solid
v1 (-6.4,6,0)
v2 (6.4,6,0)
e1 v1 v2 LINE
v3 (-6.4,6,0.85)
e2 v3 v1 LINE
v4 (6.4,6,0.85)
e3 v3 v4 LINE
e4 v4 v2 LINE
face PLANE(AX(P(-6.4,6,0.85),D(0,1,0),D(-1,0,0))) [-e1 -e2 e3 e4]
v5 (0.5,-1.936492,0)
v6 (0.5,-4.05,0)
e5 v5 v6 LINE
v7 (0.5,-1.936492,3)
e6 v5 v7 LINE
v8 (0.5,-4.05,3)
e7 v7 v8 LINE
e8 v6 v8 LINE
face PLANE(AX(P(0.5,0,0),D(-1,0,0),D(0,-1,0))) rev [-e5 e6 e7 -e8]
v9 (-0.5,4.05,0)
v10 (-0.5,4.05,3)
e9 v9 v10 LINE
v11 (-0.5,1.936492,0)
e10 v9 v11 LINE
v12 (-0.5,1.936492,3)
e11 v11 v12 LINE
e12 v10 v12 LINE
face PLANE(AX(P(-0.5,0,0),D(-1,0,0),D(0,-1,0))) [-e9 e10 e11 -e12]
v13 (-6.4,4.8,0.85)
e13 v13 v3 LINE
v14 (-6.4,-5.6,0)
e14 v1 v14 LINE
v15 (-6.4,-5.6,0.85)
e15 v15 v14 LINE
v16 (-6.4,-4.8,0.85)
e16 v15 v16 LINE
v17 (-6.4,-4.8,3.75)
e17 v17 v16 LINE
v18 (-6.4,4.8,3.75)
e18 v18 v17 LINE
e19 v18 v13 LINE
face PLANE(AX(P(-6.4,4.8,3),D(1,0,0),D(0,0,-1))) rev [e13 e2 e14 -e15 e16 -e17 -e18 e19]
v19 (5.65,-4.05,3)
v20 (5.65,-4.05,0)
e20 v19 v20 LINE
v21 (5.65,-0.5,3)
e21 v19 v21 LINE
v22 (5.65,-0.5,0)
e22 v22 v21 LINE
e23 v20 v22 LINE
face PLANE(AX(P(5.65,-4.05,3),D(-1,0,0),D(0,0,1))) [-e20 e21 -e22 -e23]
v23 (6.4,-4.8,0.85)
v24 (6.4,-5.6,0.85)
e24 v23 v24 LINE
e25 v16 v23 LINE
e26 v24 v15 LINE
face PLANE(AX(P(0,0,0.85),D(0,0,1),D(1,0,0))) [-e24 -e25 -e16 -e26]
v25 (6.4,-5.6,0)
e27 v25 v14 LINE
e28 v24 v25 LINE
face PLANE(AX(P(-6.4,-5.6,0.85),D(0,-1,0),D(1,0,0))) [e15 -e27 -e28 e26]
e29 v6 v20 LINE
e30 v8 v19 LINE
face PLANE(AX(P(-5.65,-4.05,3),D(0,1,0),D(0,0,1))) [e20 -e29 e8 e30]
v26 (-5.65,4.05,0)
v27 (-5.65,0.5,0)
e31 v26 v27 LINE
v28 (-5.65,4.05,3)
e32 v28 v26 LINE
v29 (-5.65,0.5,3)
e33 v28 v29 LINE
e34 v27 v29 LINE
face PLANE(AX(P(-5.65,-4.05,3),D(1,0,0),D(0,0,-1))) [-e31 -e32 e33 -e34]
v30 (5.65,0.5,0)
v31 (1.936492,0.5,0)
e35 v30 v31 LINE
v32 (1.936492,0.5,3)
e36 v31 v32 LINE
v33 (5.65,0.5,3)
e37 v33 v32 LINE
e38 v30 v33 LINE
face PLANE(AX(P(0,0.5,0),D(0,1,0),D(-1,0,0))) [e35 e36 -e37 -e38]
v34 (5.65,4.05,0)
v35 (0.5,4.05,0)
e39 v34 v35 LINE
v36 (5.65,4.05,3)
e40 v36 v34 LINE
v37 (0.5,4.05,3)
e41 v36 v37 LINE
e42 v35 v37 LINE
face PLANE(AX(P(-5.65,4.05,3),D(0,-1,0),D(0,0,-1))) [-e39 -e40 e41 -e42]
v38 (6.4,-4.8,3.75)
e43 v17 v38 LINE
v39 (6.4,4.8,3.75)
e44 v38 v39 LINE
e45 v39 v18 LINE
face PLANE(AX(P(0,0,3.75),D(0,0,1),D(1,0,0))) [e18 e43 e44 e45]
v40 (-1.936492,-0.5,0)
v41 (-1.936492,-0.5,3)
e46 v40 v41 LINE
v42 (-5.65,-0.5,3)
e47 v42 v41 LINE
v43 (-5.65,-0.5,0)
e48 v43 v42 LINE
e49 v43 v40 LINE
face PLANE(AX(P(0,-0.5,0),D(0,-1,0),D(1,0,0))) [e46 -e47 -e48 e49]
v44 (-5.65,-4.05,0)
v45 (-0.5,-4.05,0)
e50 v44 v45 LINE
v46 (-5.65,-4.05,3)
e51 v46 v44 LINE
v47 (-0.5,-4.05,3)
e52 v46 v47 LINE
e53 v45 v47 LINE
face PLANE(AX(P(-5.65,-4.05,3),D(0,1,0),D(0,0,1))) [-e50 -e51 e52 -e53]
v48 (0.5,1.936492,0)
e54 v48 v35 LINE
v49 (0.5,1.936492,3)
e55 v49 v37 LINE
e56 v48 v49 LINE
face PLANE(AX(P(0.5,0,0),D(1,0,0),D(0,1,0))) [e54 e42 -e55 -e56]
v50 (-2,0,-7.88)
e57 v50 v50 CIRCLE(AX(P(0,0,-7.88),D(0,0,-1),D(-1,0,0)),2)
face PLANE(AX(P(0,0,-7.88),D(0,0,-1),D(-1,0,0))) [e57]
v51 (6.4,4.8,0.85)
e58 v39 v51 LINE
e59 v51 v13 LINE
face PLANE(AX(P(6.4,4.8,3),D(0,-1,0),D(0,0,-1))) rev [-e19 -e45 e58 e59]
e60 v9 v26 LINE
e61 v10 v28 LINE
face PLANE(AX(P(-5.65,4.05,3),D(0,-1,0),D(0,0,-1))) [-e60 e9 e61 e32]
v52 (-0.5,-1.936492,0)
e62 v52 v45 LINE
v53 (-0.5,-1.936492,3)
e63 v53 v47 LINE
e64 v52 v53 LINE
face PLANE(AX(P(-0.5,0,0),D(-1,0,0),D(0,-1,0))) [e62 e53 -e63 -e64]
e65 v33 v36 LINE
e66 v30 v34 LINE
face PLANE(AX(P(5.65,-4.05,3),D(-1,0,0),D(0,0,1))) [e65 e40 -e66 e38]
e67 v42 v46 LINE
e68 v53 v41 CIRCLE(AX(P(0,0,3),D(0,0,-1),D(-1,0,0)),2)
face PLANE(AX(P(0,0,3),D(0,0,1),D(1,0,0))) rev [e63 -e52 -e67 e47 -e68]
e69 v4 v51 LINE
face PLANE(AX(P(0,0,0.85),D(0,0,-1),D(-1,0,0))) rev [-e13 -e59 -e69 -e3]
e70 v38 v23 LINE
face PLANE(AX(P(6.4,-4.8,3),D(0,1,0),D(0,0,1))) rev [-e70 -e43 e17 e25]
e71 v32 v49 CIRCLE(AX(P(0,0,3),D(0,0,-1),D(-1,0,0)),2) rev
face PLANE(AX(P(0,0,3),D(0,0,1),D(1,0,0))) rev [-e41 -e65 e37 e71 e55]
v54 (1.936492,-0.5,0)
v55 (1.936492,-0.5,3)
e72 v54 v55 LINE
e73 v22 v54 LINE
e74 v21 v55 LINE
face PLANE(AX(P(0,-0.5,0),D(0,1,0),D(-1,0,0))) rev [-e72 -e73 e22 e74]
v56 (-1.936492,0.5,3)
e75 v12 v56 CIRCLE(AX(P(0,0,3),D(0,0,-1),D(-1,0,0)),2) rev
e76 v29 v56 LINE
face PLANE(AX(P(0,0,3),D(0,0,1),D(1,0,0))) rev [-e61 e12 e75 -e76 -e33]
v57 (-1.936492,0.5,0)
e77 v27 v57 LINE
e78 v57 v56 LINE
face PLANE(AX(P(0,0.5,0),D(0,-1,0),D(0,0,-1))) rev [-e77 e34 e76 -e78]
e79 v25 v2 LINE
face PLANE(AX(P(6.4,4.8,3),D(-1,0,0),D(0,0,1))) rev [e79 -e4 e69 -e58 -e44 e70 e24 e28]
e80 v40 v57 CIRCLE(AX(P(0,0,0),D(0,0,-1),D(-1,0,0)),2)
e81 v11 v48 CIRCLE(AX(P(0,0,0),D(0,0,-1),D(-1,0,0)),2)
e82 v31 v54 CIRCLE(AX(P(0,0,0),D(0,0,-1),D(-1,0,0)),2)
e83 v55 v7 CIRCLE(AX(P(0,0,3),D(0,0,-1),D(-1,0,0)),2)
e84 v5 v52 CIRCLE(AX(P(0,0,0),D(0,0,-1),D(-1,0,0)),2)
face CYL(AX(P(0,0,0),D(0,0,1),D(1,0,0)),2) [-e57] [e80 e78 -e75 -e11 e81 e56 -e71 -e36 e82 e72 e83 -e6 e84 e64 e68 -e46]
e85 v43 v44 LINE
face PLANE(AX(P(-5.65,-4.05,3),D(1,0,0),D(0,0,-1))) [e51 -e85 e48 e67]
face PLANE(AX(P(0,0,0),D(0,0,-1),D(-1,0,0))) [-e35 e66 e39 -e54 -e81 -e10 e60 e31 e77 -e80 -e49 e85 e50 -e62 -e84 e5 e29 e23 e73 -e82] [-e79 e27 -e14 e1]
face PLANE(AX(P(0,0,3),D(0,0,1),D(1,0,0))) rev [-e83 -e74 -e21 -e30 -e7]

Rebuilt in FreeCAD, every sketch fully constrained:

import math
import FreeCAD as App
import Part
import Sketcher

V = App.Vector
Q = App.Units.Quantity


def add_polygon(sketch, points):
    """Adds a closed chain of lines whose ends are joined by coincident constraints."""
    first, n = sketch.GeometryCount, len(points)
    for a, b in zip(points, points[1:] + points[:1]):
        sketch.addGeometry(Part.LineSegment(App.Vector(*a, 0), App.Vector(*b, 0)), False)
    for i in range(n):
        sketch.addConstraint(Sketcher.Constraint("Coincident", first + i, 2, first + (i + 1) % n, 1))

doc = App.newDocument("Part")
body = doc.addObject("PartDesign::Body", "Body")

sketch1 = doc.addObject("Sketcher::SketchObject", "Sketch")
body.addObject(sketch1)
sketch1.AttachmentSupport = (doc.XY_Plane, [""])
sketch1.MapMode = "FlatFace"
add_polygon(sketch1, [(-6, 5), (-6, -5), (6, -5), (6, 5)])
add_polygon(sketch1, [(6, -4), (-6, -4), (-6, 4), (6, 4)])
sketch1.addConstraint(Sketcher.Constraint("Vertical", 0))
sketch1.addConstraint(Sketcher.Constraint("Horizontal", 1))
sketch1.addConstraint(Sketcher.Constraint("Vertical", 2))
sketch1.addConstraint(Sketcher.Constraint("Horizontal", 3))
sketch1.addConstraint(Sketcher.Constraint("Horizontal", 4))
sketch1.addConstraint(Sketcher.Constraint("Vertical", 5))
sketch1.addConstraint(Sketcher.Constraint("Horizontal", 6))
sketch1.addConstraint(Sketcher.Constraint("Vertical", 7))
sketch1.addConstraint(Sketcher.Constraint("Symmetric", 0, 2, 2, 2, -1, 1))
sketch1.addConstraint(Sketcher.Constraint("Symmetric", 4, 2, 6, 2, -1, 1))
sketch1.addConstraint(Sketcher.Constraint("DistanceX", 1, 1, 1, 2, Q("12.8 mm")))
sketch1.addConstraint(Sketcher.Constraint("DistanceX", 4, 2, 4, 1, Q("11.3 mm")))
sketch1.addConstraint(Sketcher.Constraint("DistanceY", 0, 2, 0, 1, Q("9.6 mm")))
sketch1.addConstraint(Sketcher.Constraint("DistanceY", 5, 1, 5, 2, Q("8.1 mm")))
pad1 = doc.addObject("PartDesign::Pad", "Pad")
body.addObject(pad1)
pad1.Profile = sketch1
pad1.Length = 3

sketch2 = doc.addObject("Sketcher::SketchObject", "Sketch001")
body.addObject(sketch2)
sketch2.AttachmentSupport = (doc.XY_Plane, [""])
sketch2.MapMode = "FlatFace"
sketch2.AttachmentOffset = App.Placement(V(0, 0, 3), App.Rotation())
add_polygon(sketch2, [(-6, 5), (-6, -5), (6, -5), (6, 5)])
sketch2.addConstraint(Sketcher.Constraint("Vertical", 0))
sketch2.addConstraint(Sketcher.Constraint("Horizontal", 1))
sketch2.addConstraint(Sketcher.Constraint("Vertical", 2))
sketch2.addConstraint(Sketcher.Constraint("Horizontal", 3))
sketch2.addConstraint(Sketcher.Constraint("Symmetric", 0, 2, 2, 2, -1, 1))
sketch2.addConstraint(Sketcher.Constraint("DistanceX", 1, 1, 1, 2, Q("12.8 mm")))
sketch2.addConstraint(Sketcher.Constraint("DistanceY", 0, 2, 0, 1, Q("9.6 mm")))
pad2 = doc.addObject("PartDesign::Pad", "Pad001")
body.addObject(pad2)
pad2.Profile = sketch2
pad2.Length = 0.75

sketch3 = doc.addObject("Sketcher::SketchObject", "Sketch002")
body.addObject(sketch3)
sketch3.AttachmentSupport = (doc.XY_Plane, [""])
sketch3.MapMode = "FlatFace"
add_polygon(sketch3, [(6.4, 6), (6.4, 4.8), (-6.4, 4.8), (-6.4, 6)])
add_polygon(sketch3, [(6.4, -4.8), (6.4, -5.6), (-6.4, -5.6), (-6.4, -4.8)])
sketch3.addConstraint(Sketcher.Constraint("Vertical", 0))
sketch3.addConstraint(Sketcher.Constraint("Horizontal", 1))
sketch3.addConstraint(Sketcher.Constraint("Vertical", 2))
sketch3.addConstraint(Sketcher.Constraint("Horizontal", 3))
sketch3.addConstraint(Sketcher.Constraint("Vertical", 4))
sketch3.addConstraint(Sketcher.Constraint("Horizontal", 5))
sketch3.addConstraint(Sketcher.Constraint("Vertical", 6))
sketch3.addConstraint(Sketcher.Constraint("Horizontal", 7))
sketch3.addConstraint(Sketcher.Constraint("Symmetric", 0, 2, 6, 2, -1, 1))
sketch3.addConstraint(Sketcher.Constraint("Vertical", 3, 2, 4, 2))
sketch3.addConstraint(Sketcher.Constraint("Vertical", 2, 2, 5, 2))
sketch3.addConstraint(Sketcher.Constraint("DistanceX", 1, 2, 1, 1, Q("12.8 mm")))
sketch3.addConstraint(Sketcher.Constraint("DistanceY", 0, 2, 0, 1, Q("1.2 mm")))
sketch3.addConstraint(Sketcher.Constraint("DistanceY", 4, 2, 4, 1, Q("0.8 mm")))
sketch3.addConstraint(Sketcher.Constraint("DistanceY", -1, 1, 2, 2, Q("6 mm")))
pad3 = doc.addObject("PartDesign::Pad", "Pad002")
body.addObject(pad3)
pad3.Profile = sketch3
pad3.Length = 0.85
body2 = doc.addObject("PartDesign::Body", "Body001")

sketch4 = doc.addObject("Sketcher::SketchObject", "Sketch003")
body2.addObject(sketch4)
sketch4.AttachmentSupport = (doc.getObject("XY_Plane001"), [""])
sketch4.MapMode = "FlatFace"
sketch4.AttachmentOffset = App.Placement(V(0, 0, 3), App.Rotation())
sketch4.addGeometry(Part.LineSegment(V(-5.7, -0.5, 0), V(-5.7, 0.5, 0)), False)
sketch4.addGeometry(Part.LineSegment(V(-5.7, 0.5, 0), V(-1.9, 0.5, 0)), False)
sketch4.addGeometry(Part.ArcOfCircle(Part.Circle(V(0, 0, 0), V(0, 0, 1), 2), math.radians(104), math.radians(166)), False)
sketch4.addGeometry(Part.LineSegment(V(-0.5, 1.9, 0), V(-0.5, 4, 0)), False)
sketch4.addGeometry(Part.LineSegment(V(-0.5, 4, 0), V(0.5, 4, 0)), False)
sketch4.addGeometry(Part.LineSegment(V(0.5, 4, 0), V(0.5, 1.9, 0)), False)
sketch4.addGeometry(Part.ArcOfCircle(Part.Circle(V(0, 0, 0), V(0, 0, 1), 2), math.radians(14), math.radians(76)), False)
sketch4.addGeometry(Part.LineSegment(V(1.9, 0.5, 0), V(5.7, 0.5, 0)), False)
sketch4.addGeometry(Part.LineSegment(V(5.7, 0.5, 0), V(5.7, -0.5, 0)), False)
sketch4.addGeometry(Part.LineSegment(V(5.7, -0.5, 0), V(1.9, -0.5, 0)), False)
sketch4.addGeometry(Part.ArcOfCircle(Part.Circle(V(0, 0, 0), V(0, 0, 1), 2), math.radians(-76), math.radians(-14)), False)
sketch4.addGeometry(Part.LineSegment(V(0.5, -1.9, 0), V(0.5, -4, 0)), False)
sketch4.addGeometry(Part.LineSegment(V(0.5, -4, 0), V(-0.5, -4, 0)), False)
sketch4.addGeometry(Part.LineSegment(V(-0.5, -4, 0), V(-0.5, -1.9, 0)), False)
sketch4.addGeometry(Part.ArcOfCircle(Part.Circle(V(0, 0, 0), V(0, 0, 1), 2), math.radians(-166), math.radians(-104)), False)
sketch4.addGeometry(Part.LineSegment(V(-1.9, -0.5, 0), V(-5.7, -0.5, 0)), False)
sketch4.addConstraint(Sketcher.Constraint("Coincident", 0, 2, 1, 1))
sketch4.addConstraint(Sketcher.Constraint("Coincident", 1, 2, 2, 2))
sketch4.addConstraint(Sketcher.Constraint("Coincident", 2, 1, 3, 1))
sketch4.addConstraint(Sketcher.Constraint("Coincident", 3, 2, 4, 1))
sketch4.addConstraint(Sketcher.Constraint("Coincident", 4, 2, 5, 1))
sketch4.addConstraint(Sketcher.Constraint("Coincident", 5, 2, 6, 2))
sketch4.addConstraint(Sketcher.Constraint("Coincident", 6, 1, 7, 1))
sketch4.addConstraint(Sketcher.Constraint("Coincident", 7, 2, 8, 1))
sketch4.addConstraint(Sketcher.Constraint("Coincident", 8, 2, 9, 1))
sketch4.addConstraint(Sketcher.Constraint("Coincident", 9, 2, 10, 2))
sketch4.addConstraint(Sketcher.Constraint("Coincident", 10, 1, 11, 1))
sketch4.addConstraint(Sketcher.Constraint("Coincident", 11, 2, 12, 1))
sketch4.addConstraint(Sketcher.Constraint("Coincident", 12, 2, 13, 1))
sketch4.addConstraint(Sketcher.Constraint("Coincident", 13, 2, 14, 2))
sketch4.addConstraint(Sketcher.Constraint("Coincident", 14, 1, 15, 1))
sketch4.addConstraint(Sketcher.Constraint("Coincident", 15, 2, 0, 1))
sketch4.addConstraint(Sketcher.Constraint("Vertical", 0))
sketch4.addConstraint(Sketcher.Constraint("Horizontal", 1))
sketch4.addConstraint(Sketcher.Constraint("Vertical", 3))
sketch4.addConstraint(Sketcher.Constraint("Horizontal", 4))
sketch4.addConstraint(Sketcher.Constraint("Vertical", 5))
sketch4.addConstraint(Sketcher.Constraint("Horizontal", 7))
sketch4.addConstraint(Sketcher.Constraint("Vertical", 8))
sketch4.addConstraint(Sketcher.Constraint("Horizontal", 9))
sketch4.addConstraint(Sketcher.Constraint("Vertical", 11))
sketch4.addConstraint(Sketcher.Constraint("Horizontal", 12))
sketch4.addConstraint(Sketcher.Constraint("Vertical", 13))
sketch4.addConstraint(Sketcher.Constraint("Horizontal", 15))
sketch4.addConstraint(Sketcher.Constraint("Coincident", 2, 3, -1, 1))
sketch4.addConstraint(Sketcher.Constraint("Coincident", 6, 3, -1, 1))
sketch4.addConstraint(Sketcher.Constraint("Coincident", 10, 3, -1, 1))
sketch4.addConstraint(Sketcher.Constraint("Coincident", 14, 3, -1, 1))
sketch4.addConstraint(Sketcher.Constraint("Equal", 2, 6))
sketch4.addConstraint(Sketcher.Constraint("Equal", 6, 10))
sketch4.addConstraint(Sketcher.Constraint("Equal", 10, 14))
sketch4.addConstraint(Sketcher.Constraint("Symmetric", 0, 2, 8, 2, -1, 1))
sketch4.addConstraint(Sketcher.Constraint("Symmetric", 3, 2, 11, 2, -1, 1))
sketch4.addConstraint(Sketcher.Constraint("Horizontal", 2, 1, 5, 2))
sketch4.addConstraint(Sketcher.Constraint("Horizontal", 1, 2, 6, 1))
sketch4.addConstraint(Sketcher.Constraint("Horizontal", 10, 1, 13, 2))
sketch4.addConstraint(Sketcher.Constraint("Horizontal", 9, 2, 14, 1))
sketch4.addConstraint(Sketcher.Constraint("Equal", 12, 0))
sketch4.addConstraint(Sketcher.Constraint("Radius", 2, Q("2 mm")))
sketch4.addConstraint(Sketcher.Constraint("DistanceX", 4, 1, 4, 2, Q("1 mm")))
sketch4.addConstraint(Sketcher.Constraint("DistanceX", 0, 2, -1, 1, Q("5.65 mm")))
sketch4.addConstraint(Sketcher.Constraint("DistanceY", -1, 1, 3, 2, Q("4.05 mm")))
pad4 = doc.addObject("PartDesign::Pad", "Pad003")
body2.addObject(pad4)
pad4.Profile = sketch4
pad4.Length = 3
pad4.Reversed = True
doc.recompute()

boolean = doc.addObject("PartDesign::Boolean", "Boolean")
body.addObject(boolean)
boolean.Type = "Fuse"
boolean.addObjects([body2])

sketch5 = doc.addObject("Sketcher::SketchObject", "Sketch004")
body.addObject(sketch5)
sketch5.AttachmentSupport = (doc.XY_Plane, [""])
sketch5.MapMode = "FlatFace"
sketch5.addGeometry(Part.Circle(V(0, 0, 0), V(0, 0, 1), 2), False)
sketch5.addConstraint(Sketcher.Constraint("Coincident", 0, 3, -1, 1))
sketch5.addConstraint(Sketcher.Constraint("Diameter", 0, Q("4 mm")))
pad5 = doc.addObject("PartDesign::Pad", "Pad004")
body.addObject(pad5)
pad5.Profile = sketch5
pad5.Length = 7.88
pad5.Reversed = True

doc.recompute()
